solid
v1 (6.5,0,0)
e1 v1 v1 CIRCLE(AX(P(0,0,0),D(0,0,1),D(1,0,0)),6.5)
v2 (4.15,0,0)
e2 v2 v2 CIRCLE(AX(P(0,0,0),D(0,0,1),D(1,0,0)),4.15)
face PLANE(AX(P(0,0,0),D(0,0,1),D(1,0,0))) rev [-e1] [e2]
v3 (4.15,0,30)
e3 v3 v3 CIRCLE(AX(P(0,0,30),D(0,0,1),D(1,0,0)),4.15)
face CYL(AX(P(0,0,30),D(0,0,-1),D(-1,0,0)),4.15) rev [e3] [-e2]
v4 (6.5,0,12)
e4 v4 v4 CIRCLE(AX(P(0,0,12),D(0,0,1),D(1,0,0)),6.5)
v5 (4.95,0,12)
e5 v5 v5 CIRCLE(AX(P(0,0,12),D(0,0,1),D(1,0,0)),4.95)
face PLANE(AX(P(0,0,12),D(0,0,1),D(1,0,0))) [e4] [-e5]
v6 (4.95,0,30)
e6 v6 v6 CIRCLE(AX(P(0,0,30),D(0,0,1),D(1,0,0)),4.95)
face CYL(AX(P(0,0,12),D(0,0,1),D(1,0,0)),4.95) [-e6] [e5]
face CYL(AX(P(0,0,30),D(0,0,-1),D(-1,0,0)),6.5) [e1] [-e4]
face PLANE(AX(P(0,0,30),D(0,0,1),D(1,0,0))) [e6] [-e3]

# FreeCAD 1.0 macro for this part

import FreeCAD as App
import Part
import Sketcher
Q = App.Units.Quantity

doc = App.newDocument("Part")
params = doc.addObject("Spreadsheet::Sheet", "Params")
for row, (alias, value) in enumerate([
    ("sketch1_diameter", "13 mm"),
    ("sketch1_diameter2", "8.3 mm"),
    ("pad1_length", "30 mm"),
    ("sketch2_diameter", "13 mm"),
    ("sketch2_diameter2", "9.9 mm"),
    ("pocket1_length", "18 mm"),
], start=1):
    params.set(f"A{row}", alias)
    params.set(f"B{row}", "=" + value)
    params.setAlias(f"B{row}", alias)

body = doc.addObject("PartDesign::Body", "Body")

# Sketch on XY plane
sketch1 = body.newObject("Sketcher::SketchObject", "Sketch")
sketch1.AttachmentSupport = (doc.getObject("XY_Plane"), [""])
sketch1.MapMode = "FlatFace"
sketch1.addGeometry([
    Part.Circle(App.Vector(0, 0, 0), App.Vector(0, 0, 1), 6.5),
    Part.Circle(App.Vector(0, 0, 0), App.Vector(0, 0, 1), 4.2),
], False)
sketch1.addConstraint([
    Sketcher.Constraint("Coincident", 0, 3, -1, 1),
    Sketcher.Constraint("Coincident", 1, 3, -1, 1),
    Sketcher.Constraint("Diameter", 0, Q("13 mm")),
    Sketcher.Constraint("Diameter", 1, Q("8.3 mm")),
])
sketch1.setExpression("Constraints[2]", "Params.sketch1_diameter")
sketch1.setExpression("Constraints[3]", "Params.sketch1_diameter2")
pad1 = body.newObject("PartDesign::Pad", "Pad")
pad1.Profile = sketch1
pad1.setExpression("Length", "Params.pad1_length")

# Sketch on XY plane
sketch2 = body.newObject("Sketcher::SketchObject", "Sketch001")
sketch2.AttachmentSupport = (doc.getObject("XY_Plane"), [""])
sketch2.MapMode = "FlatFace"
sketch2.AttachmentOffset = App.Placement(App.Vector(0, 0, 12), App.Rotation())
sketch2.addGeometry([
    Part.Circle(App.Vector(0, 0, 0), App.Vector(0, 0, 1), 6.5),
    Part.Circle(App.Vector(0, 0, 0), App.Vector(0, 0, 1), 5),
], False)
sketch2.addConstraint([
    Sketcher.Constraint("Coincident", 0, 3, -1, 1),
    Sketcher.Constraint("Coincident", 1, 3, -1, 1),
    Sketcher.Constraint("Diameter", 0, Q("13 mm")),
    Sketcher.Constraint("Diameter", 1, Q("9.9 mm")),
])
sketch2.setExpression("Constraints[2]", "Params.sketch2_diameter")
sketch2.setExpression("Constraints[3]", "Params.sketch2_diameter2")
pocket1 = body.newObject("PartDesign::Pocket", "Pocket")
pocket1.Profile = sketch2
pocket1.setExpression("Length", "Params.pocket1_length")
pocket1.Reversed = True

doc.recompute()
